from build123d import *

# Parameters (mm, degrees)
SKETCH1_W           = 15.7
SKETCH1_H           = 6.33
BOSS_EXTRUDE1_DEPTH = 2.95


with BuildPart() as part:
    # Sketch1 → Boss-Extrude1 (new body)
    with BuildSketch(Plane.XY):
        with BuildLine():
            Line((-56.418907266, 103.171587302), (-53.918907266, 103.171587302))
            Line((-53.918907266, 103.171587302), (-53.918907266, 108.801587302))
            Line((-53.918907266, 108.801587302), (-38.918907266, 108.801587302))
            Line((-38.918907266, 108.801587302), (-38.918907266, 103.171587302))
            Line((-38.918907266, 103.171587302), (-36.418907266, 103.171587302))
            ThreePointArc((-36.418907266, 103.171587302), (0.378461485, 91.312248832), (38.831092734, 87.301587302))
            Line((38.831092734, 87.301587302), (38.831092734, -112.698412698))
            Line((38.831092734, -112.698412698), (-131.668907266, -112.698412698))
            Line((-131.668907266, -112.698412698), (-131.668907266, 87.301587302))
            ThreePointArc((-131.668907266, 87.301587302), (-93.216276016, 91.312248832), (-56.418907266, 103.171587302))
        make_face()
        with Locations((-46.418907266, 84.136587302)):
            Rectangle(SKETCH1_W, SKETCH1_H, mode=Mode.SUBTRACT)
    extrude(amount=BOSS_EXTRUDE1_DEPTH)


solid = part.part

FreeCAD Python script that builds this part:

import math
import FreeCAD as App
import Part
import Sketcher

doc = App.newDocument("Part")
params = doc.addObject("Spreadsheet::Sheet", "Params")
for row, (alias, value) in enumerate([
    ("sketch1_width", "15 mm"),
    ("sketch1_height", "200 mm"),
    ("sketch1_width2", "2.5 mm"),
    ("sketch1_width3", "170.5 mm"),
    ("sketch1_width4", "15.7 mm"),
    ("pad1_length", "2.95 mm"),
], start=1):
    params.set(f"A{row}", alias)
    params.set(f"B{row}", "=" + value)
    params.setAlias(f"B{row}", alias)

body = doc.addObject("PartDesign::Body", "Body")

sketch1 = body.newObject("Sketcher::SketchObject", "Sketch")
sketch1.AttachmentSupport = (doc.getObject("XY_Plane"), [""])
sketch1.MapMode = "FlatFace"
sketch1.addGeometry([
    Part.LineSegment(App.Vector(-53.9, 103.2, 0), App.Vector(-56.4, 103.2, 0)),
    Part.ArcOfCircle(Part.Circle(App.Vector(-131.7, 273.6, 0), App.Vector(0, 0, 1), 186.3), math.radians(-90), math.radians(-66)),
    Part.LineSegment(App.Vector(-131.7, 87.3, 0), App.Vector(-131.7, -112.7, 0)),
    Part.LineSegment(App.Vector(-131.7, -112.7, 0), App.Vector(38.8, -112.7, 0)),
    Part.LineSegment(App.Vector(38.8, -112.7, 0), App.Vector(38.8, 87.3, 0)),
    Part.ArcOfCircle(Part.Circle(App.Vector(38.8, 273.6, 0), App.Vector(0, 0, 1), 186.3), math.radians(-114), math.radians(-90)),
    Part.LineSegment(App.Vector(-36.4, 103.2, 0), App.Vector(-38.9, 103.2, 0)),
    Part.LineSegment(App.Vector(-38.9, 103.2, 0), App.Vector(-38.9, 108.8, 0)),
    Part.LineSegment(App.Vector(-38.9, 108.8, 0), App.Vector(-53.9, 108.8, 0)),
    Part.LineSegment(App.Vector(-53.9, 108.8, 0), App.Vector(-53.9, 103.2, 0)),
    Part.LineSegment(App.Vector(-54.3, 81, 0), App.Vector(-54.3, 87.3, 0)),
    Part.LineSegment(App.Vector(-54.3, 87.3, 0), App.Vector(-38.6, 87.3, 0)),
    Part.LineSegment(App.Vector(-38.6, 87.3, 0), App.Vector(-38.6, 81, 0)),
    Part.LineSegment(App.Vector(-38.6, 81, 0), App.Vector(-54.3, 81, 0)),
], False)
sketch1.addConstraint([
    Sketcher.Constraint("Coincident", 0, 2, 1, 2),
    Sketcher.Constraint("Coincident", 1, 1, 2, 1),
    Sketcher.Constraint("Coincident", 2, 2, 3, 1),
    Sketcher.Constraint("Coincident", 3, 2, 4, 1),
    Sketcher.Constraint("Coincident", 4, 2, 5, 2),
    Sketcher.Constraint("Coincident", 5, 1, 6, 1),
    Sketcher.Constraint("Coincident", 6, 2, 7, 1),
    Sketcher.Constraint("Coincident", 7, 2, 8, 1),
    Sketcher.Constraint("Coincident", 8, 2, 9, 1),
    Sketcher.Constraint("Coincident", 9, 2, 0, 1),
    Sketcher.Constraint("Coincident", 10, 2, 11, 1),
    Sketcher.Constraint("Coincident", 11, 2, 12, 1),
    Sketcher.Constraint("Coincident", 12, 2, 13, 1),
    Sketcher.Constraint("Coincident", 13, 2, 10, 1),
    Sketcher.Constraint("Horizontal", 0),
    Sketcher.Constraint("Vertical", 2),
    Sketcher.Constraint("Horizontal", 3),
    Sketcher.Constraint("Vertical", 4),
    Sketcher.Constraint("Horizontal", 6),
    Sketcher.Constraint("Vertical", 7),
    Sketcher.Constraint("Horizontal", 8),
    Sketcher.Constraint("Vertical", 9),
    Sketcher.Constraint("Vertical", 10),
    Sketcher.Constraint("Horizontal", 11),
    Sketcher.Constraint("Vertical", 12),
    Sketcher.Constraint("Horizontal", 13),
    Sketcher.Constraint("Equal", 1, 5),
    Sketcher.Constraint("Horizontal", 1, 3, 5, 3),
    Sketcher.Constraint("Horizontal", 0, 2, 5, 1),
    Sketcher.Constraint("Horizontal", 4, 2, 10, 2),
    Sketcher.Constraint("Vertical", 5, 3, 3, 2),
    Sketcher.Constraint("Equal", 0, 6),
    Sketcher.Constraint("DistanceX", 8, 2, 8, 1, 15.0),
    Sketcher.Constraint("DistanceY", 2, 2, 2, 1, 200.0),
    Sketcher.Constraint("DistanceX", 0, 2, 0, 1, 2.5),
    Sketcher.Constraint("DistanceX", 3, 1, 3, 2, 170.5),
    Sketcher.Constraint("DistanceX", 11, 1, 11, 2, 15.7),
    Sketcher.Constraint("DistanceY", 7, 1, 7, 2, 5.63),
    Sketcher.Constraint("DistanceY", 10, 1, 10, 2, 6.33),
    Sketcher.Constraint("DistanceX", 1, 3, 5, 3, 170.5),
    Sketcher.Constraint("DistanceY", 4, 2, 7, 2, 21.5),
    Sketcher.Constraint("DistanceX", 10, 2, 9, 2, 0.35),
    Sketcher.Constraint("DistanceX", 1, 3, -1, 1, 131.668907),
    Sketcher.Constraint("DistanceY", -1, 1, 1, 3, 273.641203),
])
sketch1.setExpression("Constraints[32]", "Params.sketch1_width")
sketch1.setExpression("Constraints[33]", "Params.sketch1_height")
sketch1.setExpression("Constraints[34]", "Params.sketch1_width2")
sketch1.setExpression("Constraints[35]", "Params.sketch1_width3")
sketch1.setExpression("Constraints[36]", "Params.sketch1_width4")
pad1 = body.newObject("PartDesign::Pad", "Pad")
pad1.Profile = sketch1
pad1.setExpression("Length", "Params.pad1_length")

doc.recompute()
